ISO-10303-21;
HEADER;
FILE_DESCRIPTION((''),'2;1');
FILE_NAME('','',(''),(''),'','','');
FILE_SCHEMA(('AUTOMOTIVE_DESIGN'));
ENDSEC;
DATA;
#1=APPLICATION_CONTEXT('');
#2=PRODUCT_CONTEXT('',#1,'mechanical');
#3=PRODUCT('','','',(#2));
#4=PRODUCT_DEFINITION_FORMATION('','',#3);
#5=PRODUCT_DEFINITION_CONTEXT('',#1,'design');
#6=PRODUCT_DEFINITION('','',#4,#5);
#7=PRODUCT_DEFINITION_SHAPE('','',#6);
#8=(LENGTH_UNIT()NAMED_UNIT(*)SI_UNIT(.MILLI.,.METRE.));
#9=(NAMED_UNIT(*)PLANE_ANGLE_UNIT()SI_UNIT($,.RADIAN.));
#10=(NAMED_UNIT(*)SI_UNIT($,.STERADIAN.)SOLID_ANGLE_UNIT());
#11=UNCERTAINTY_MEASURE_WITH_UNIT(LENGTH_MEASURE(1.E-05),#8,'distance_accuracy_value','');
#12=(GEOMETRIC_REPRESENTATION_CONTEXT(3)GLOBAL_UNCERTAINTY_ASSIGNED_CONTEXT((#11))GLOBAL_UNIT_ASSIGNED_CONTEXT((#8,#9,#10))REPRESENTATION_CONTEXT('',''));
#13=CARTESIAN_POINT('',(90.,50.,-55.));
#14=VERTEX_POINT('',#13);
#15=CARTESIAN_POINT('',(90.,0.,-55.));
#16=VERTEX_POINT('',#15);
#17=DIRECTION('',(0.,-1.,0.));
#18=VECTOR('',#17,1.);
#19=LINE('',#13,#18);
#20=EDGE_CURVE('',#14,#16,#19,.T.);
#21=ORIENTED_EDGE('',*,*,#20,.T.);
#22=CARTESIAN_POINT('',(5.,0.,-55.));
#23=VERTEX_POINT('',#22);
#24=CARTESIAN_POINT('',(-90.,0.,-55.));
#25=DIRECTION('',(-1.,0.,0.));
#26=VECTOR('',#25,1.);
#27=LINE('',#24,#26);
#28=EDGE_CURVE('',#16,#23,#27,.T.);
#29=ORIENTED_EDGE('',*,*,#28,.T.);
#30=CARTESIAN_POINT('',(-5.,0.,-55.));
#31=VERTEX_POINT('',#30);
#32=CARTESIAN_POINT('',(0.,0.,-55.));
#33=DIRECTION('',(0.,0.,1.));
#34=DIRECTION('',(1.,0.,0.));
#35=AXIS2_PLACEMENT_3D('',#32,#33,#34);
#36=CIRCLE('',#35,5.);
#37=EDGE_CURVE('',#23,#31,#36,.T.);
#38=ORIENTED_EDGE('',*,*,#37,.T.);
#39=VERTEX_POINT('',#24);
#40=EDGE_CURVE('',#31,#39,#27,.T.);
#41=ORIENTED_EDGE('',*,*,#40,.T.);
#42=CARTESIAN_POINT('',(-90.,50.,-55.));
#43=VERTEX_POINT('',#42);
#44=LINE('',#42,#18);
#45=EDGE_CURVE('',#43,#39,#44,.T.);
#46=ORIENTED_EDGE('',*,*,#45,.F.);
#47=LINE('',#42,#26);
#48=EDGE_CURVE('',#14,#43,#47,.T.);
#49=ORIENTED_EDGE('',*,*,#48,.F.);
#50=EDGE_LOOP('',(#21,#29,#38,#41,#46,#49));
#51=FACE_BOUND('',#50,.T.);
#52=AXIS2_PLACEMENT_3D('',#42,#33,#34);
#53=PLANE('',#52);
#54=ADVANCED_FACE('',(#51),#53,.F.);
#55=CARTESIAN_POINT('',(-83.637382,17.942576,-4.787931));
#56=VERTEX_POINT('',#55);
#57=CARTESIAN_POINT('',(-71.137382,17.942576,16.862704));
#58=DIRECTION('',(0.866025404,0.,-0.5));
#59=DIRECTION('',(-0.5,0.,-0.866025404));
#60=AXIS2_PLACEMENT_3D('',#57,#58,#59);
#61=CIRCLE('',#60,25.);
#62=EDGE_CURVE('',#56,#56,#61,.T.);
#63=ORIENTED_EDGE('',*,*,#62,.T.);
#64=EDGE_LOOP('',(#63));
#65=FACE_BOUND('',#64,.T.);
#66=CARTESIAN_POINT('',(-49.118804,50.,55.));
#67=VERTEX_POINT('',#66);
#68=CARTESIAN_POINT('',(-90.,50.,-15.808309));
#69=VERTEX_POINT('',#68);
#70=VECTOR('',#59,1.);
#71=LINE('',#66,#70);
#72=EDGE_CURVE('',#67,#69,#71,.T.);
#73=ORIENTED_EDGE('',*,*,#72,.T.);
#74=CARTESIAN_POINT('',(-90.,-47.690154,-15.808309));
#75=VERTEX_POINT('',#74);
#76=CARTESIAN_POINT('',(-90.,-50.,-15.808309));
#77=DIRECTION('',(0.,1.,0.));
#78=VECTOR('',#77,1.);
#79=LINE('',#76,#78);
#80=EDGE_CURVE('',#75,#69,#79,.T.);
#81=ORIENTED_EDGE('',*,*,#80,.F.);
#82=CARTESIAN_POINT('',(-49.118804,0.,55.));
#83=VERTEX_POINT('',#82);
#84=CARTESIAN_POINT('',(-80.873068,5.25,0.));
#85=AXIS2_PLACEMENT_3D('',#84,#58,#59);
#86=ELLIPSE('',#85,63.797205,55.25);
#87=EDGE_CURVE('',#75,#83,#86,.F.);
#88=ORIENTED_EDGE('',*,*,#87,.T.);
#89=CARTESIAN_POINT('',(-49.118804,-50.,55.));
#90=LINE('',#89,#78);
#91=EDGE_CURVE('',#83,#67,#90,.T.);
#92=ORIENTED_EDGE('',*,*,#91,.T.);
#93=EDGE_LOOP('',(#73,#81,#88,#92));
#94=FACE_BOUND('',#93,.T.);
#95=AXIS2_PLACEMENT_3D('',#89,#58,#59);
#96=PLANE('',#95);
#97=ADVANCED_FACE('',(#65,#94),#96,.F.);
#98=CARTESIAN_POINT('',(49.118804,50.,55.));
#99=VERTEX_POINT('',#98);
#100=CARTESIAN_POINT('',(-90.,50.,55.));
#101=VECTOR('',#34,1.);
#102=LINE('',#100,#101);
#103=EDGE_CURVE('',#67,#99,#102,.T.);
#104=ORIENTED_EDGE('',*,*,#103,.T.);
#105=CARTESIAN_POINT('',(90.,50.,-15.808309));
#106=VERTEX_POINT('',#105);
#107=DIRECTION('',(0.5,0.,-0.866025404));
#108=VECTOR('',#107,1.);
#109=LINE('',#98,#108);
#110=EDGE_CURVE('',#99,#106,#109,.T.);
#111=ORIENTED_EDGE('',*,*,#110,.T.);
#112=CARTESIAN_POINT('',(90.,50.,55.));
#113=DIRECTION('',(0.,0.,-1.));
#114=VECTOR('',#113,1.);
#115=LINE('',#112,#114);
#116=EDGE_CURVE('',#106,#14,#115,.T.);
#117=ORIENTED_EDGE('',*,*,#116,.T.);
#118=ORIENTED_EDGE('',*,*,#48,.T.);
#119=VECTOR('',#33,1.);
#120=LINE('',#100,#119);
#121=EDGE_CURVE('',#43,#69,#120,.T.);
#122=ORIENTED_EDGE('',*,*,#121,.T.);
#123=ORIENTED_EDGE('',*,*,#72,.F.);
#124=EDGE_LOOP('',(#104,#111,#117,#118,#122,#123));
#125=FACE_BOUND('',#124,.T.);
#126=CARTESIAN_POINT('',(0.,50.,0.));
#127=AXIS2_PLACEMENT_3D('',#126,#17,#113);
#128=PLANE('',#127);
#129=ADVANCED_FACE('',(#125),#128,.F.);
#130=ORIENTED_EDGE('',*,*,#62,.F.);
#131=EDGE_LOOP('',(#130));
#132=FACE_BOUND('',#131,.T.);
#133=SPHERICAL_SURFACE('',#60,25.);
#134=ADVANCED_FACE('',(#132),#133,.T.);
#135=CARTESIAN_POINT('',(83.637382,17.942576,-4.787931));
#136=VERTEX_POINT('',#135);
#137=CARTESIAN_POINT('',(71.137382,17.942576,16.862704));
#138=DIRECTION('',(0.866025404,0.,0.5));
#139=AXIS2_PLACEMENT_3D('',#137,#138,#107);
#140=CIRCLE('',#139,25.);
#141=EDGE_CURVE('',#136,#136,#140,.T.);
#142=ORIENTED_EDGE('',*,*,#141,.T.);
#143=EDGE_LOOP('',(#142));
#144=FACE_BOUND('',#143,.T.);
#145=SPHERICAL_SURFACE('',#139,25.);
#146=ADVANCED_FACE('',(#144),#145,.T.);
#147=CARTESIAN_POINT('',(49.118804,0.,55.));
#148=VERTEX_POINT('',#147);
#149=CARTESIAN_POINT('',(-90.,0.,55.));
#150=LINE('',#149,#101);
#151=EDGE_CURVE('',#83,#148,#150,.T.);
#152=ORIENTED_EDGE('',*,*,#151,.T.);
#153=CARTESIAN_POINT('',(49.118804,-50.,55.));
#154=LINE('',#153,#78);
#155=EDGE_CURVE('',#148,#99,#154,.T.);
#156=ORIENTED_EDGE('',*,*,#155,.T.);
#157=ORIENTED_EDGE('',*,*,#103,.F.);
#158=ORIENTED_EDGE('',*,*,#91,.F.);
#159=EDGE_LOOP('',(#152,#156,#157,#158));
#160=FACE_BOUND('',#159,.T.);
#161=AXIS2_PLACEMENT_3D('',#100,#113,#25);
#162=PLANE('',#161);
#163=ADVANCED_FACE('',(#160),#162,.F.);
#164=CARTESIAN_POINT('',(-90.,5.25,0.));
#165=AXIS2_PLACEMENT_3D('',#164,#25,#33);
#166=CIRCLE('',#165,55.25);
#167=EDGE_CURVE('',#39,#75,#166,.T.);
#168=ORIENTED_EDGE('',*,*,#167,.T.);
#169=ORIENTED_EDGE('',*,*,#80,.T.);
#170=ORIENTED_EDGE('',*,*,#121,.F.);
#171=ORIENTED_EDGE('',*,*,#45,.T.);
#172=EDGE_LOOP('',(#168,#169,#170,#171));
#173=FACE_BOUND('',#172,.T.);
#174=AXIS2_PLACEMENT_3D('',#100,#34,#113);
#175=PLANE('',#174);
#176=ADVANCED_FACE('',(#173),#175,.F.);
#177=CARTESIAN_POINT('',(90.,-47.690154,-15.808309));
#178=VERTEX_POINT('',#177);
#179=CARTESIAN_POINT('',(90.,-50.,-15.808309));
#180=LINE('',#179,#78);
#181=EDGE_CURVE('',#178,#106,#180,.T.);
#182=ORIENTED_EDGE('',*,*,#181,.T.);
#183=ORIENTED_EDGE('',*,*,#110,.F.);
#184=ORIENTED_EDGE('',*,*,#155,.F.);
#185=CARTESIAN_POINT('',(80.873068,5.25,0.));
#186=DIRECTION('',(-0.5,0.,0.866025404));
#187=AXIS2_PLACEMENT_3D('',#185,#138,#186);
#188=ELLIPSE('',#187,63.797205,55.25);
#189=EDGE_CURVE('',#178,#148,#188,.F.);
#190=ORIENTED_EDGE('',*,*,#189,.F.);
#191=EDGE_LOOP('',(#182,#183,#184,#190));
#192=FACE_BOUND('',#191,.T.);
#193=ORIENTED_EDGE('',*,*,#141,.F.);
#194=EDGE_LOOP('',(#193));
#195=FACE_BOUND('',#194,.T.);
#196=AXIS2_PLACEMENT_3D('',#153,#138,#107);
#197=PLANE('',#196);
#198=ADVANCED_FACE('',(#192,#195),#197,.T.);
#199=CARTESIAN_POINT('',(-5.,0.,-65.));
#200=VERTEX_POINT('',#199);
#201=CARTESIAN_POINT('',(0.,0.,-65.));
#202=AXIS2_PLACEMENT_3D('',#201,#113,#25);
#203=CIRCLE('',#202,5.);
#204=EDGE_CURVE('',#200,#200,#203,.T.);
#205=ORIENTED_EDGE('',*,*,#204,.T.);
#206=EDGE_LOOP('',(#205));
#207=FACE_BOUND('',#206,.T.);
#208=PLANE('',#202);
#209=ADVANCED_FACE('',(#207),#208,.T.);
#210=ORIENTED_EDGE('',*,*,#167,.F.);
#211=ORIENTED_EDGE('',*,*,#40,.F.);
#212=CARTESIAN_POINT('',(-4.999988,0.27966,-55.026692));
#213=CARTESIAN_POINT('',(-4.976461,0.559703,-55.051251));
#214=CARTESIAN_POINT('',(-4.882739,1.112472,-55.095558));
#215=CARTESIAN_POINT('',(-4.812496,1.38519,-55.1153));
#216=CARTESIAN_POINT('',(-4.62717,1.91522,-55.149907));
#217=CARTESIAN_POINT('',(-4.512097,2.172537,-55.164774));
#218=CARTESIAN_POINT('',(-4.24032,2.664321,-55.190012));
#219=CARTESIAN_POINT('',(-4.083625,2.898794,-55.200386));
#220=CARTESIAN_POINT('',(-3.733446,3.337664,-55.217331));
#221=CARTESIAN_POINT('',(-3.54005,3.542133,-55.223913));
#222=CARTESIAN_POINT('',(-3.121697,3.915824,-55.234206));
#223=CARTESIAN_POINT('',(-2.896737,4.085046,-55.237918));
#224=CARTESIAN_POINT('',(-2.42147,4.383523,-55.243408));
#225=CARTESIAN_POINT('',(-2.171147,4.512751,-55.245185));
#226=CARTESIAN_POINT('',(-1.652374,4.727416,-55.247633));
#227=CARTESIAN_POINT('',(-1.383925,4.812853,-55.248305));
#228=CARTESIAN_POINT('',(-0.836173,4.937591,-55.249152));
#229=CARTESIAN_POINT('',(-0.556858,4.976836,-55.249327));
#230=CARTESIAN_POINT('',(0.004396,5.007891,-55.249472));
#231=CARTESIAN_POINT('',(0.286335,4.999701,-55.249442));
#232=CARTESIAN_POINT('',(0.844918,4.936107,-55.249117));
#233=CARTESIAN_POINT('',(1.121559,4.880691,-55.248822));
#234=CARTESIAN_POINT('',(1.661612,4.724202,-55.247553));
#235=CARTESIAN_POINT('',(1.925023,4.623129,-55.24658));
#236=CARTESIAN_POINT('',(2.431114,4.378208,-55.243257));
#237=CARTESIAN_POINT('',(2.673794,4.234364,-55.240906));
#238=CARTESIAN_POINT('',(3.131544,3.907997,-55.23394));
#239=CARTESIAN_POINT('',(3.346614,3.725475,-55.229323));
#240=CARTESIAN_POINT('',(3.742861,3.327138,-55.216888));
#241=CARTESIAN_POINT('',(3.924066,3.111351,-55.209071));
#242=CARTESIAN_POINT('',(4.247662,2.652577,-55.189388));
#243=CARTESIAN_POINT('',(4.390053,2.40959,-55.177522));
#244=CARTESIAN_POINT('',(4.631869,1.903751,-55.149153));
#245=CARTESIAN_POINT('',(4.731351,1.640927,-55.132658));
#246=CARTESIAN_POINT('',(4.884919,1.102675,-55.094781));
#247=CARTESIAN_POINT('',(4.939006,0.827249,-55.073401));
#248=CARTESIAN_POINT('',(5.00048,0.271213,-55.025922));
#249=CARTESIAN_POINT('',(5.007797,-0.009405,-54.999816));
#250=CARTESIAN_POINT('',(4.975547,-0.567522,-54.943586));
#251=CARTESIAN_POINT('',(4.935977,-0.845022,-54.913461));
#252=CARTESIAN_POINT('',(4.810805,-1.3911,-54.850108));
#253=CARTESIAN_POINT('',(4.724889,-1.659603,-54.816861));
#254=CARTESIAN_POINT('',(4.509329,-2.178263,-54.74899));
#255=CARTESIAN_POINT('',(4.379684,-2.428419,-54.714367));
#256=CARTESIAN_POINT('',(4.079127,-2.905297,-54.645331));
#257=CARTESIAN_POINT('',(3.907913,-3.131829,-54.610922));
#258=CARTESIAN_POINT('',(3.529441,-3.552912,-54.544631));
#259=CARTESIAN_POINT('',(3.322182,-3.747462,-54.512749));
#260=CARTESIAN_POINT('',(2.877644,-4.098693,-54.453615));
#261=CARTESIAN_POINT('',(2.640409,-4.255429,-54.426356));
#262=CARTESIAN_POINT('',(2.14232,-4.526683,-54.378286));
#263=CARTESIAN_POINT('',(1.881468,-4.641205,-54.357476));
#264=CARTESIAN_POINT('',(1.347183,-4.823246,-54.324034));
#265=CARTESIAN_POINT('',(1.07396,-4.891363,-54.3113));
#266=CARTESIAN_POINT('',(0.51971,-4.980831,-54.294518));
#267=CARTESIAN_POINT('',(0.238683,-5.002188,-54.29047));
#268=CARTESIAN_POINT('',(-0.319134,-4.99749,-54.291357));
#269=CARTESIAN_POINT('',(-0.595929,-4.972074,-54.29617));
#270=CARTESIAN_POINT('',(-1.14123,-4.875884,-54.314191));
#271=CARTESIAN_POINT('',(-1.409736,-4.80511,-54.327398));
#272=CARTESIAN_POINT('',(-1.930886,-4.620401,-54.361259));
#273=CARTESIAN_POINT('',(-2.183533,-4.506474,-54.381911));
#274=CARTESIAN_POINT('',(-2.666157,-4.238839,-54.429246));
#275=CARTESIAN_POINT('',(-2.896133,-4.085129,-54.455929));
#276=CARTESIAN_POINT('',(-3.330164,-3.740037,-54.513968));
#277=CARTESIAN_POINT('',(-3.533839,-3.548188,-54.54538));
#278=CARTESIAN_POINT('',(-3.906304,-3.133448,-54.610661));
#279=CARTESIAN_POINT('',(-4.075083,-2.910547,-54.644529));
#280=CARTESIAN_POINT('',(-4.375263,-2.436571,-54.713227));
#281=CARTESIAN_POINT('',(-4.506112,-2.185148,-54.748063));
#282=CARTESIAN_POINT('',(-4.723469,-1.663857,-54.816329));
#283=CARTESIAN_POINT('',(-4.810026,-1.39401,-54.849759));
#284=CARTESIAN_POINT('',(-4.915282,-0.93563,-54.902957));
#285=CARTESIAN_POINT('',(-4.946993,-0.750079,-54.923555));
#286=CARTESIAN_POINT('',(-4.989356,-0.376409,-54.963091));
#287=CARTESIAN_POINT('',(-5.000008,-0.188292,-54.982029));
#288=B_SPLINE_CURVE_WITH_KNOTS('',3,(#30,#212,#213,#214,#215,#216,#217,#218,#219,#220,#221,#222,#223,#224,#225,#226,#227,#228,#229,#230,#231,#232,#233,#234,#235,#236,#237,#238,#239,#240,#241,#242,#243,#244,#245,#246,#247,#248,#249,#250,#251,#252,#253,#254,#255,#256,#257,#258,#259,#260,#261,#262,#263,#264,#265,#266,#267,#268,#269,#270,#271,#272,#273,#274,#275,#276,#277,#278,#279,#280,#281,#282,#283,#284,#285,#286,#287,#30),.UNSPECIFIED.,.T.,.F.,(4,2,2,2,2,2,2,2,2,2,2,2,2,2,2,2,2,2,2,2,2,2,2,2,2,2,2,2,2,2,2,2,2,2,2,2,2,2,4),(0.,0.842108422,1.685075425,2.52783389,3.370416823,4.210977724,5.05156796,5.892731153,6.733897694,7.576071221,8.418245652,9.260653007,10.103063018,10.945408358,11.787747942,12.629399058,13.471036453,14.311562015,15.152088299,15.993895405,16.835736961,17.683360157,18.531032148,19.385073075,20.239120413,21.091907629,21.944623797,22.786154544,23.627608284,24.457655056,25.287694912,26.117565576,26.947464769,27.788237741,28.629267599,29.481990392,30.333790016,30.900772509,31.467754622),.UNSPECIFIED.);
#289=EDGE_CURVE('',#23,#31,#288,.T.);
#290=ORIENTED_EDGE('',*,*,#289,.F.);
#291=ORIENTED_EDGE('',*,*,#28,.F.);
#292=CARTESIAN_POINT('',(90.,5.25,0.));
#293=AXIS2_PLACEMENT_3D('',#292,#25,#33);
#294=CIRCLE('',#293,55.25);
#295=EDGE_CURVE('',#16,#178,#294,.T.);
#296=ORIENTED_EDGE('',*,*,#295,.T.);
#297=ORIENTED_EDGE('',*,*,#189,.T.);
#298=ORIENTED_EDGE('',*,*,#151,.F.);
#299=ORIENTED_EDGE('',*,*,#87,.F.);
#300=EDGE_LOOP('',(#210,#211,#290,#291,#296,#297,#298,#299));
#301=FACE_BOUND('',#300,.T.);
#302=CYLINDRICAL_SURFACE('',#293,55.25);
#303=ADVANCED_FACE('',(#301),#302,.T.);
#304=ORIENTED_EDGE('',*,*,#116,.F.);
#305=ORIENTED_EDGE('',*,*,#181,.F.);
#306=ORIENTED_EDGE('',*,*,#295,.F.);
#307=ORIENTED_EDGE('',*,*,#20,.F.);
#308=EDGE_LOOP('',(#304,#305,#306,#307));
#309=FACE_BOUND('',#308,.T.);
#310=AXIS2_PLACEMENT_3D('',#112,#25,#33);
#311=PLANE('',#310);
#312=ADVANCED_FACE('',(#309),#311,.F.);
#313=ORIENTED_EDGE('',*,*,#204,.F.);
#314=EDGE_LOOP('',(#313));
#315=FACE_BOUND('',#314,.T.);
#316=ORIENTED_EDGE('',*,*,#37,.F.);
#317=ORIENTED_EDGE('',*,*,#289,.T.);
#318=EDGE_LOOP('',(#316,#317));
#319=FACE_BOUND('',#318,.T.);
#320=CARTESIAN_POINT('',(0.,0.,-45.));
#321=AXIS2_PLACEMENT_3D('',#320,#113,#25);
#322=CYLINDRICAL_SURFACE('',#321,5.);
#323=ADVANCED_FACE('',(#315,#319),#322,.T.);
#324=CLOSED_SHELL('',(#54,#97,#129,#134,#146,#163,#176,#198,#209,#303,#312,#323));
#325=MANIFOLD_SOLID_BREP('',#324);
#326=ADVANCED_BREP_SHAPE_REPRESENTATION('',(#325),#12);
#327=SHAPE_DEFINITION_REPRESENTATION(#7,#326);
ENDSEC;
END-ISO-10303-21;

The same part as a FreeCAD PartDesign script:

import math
import FreeCAD as App
import Part
import Sketcher
from FreeCAD import Vector
Q = App.Units.Quantity


def add_polygon(sketch, points):
    """Adds a closed chain of lines whose ends are joined by coincident constraints."""
    first, n = sketch.GeometryCount, len(points)
    for a, b in zip(points, points[1:] + points[:1]):
        sketch.addGeometry(Part.LineSegment(App.Vector(*a, 0), App.Vector(*b, 0)), False)
    for i in range(n):
        sketch.addConstraint(Sketcher.Constraint("Coincident", first + i, 2, first + (i + 1) % n, 1))

doc = App.newDocument("Part")
body = doc.addObject("PartDesign::Body", "Body")

# Sketch on XZ plane
sketch1 = body.newObject("Sketcher::SketchObject", "Sketch")
sketch1.AttachmentSupport = (doc.getObject("XZ_Plane"), [""])
sketch1.MapMode = "FlatFace"
add_polygon(sketch1, [(-90, -55), (-90, 55), (90, 55), (90, -55)])  # lines 0-3
sketch1.addConstraint(Sketcher.Constraint("Vertical", 0))
sketch1.addConstraint(Sketcher.Constraint("Horizontal", 1))
sketch1.addConstraint(Sketcher.Constraint("Vertical", 2))
sketch1.addConstraint(Sketcher.Constraint("Horizontal", 3))
sketch1.addConstraint(Sketcher.Constraint("Symmetric", 0, 2, 2, 2, -1, 1))
sketch1.addConstraint(Sketcher.Constraint("DistanceX", 1, 1, 1, 2, 180.0))
sketch1.addConstraint(Sketcher.Constraint("DistanceY", 0, 1, 0, 2, 110.0))
pad1 = body.newObject("PartDesign::Pad", "Pad")
pad1.Profile = sketch1
pad1.Length = 50
pad1.Reversed = True

# Sketch on YZ plane
sketch2 = body.newObject("Sketcher::SketchObject", "Sketch001")
sketch2.AttachmentSupport = (doc.getObject("YZ_Plane"), [""])
sketch2.MapMode = "FlatFace"
sketch2.AttachmentOffset = App.Placement(Vector(0, 0, -90), App.Rotation())
sketch2.addGeometry(Part.LineSegment(Vector(0, 55, 0), Vector(0, -55, 0)), False)
sketch2.addGeometry(Part.ArcOfCircle(Part.Circle(Vector(5, 0, 0), Vector(0, 0, 1), 55), math.radians(95), math.radians(265)), False)
sketch2.addConstraint(Sketcher.Constraint("Coincident", 0, 1, 1, 1))
sketch2.addConstraint(Sketcher.Constraint("Coincident", 1, 2, 0, 2))
sketch2.addConstraint(Sketcher.Constraint("Vertical", 0))
sketch2.addConstraint(Sketcher.Constraint("Symmetric", 0, 1, 1, 2, -1, 1))
sketch2.addConstraint(Sketcher.Constraint("DistanceY", 0, 2, 0, 1, 110.0))
sketch2.addConstraint(Sketcher.Constraint("Radius", 1, 55.25))
pad2 = body.newObject("PartDesign::Pad", "Pad001")
pad2.Profile = sketch2
pad2.Length = 180

# Sketch on XZ plane
sketch3 = body.newObject("Sketcher::SketchObject", "Sketch002")
sketch3.AttachmentSupport = (doc.getObject("XZ_Plane"), [""])
sketch3.MapMode = "FlatFace"
sketch3.AttachmentOffset = App.Placement(Vector(0, 0, -50), App.Rotation())
add_polygon(sketch3, [(-49, 55), (-90, -16), (-90, 55)])  # lines 0-2
sketch3.addConstraint(Sketcher.Constraint("Vertical", 1))
sketch3.addConstraint(Sketcher.Constraint("Horizontal", 2))
sketch3.addConstraint(Sketcher.Constraint("Angle", 0, Q("-120 deg")))
sketch3.addConstraint(Sketcher.Constraint("DistanceX", 0, 2, -1, 1, 90.0))
sketch3.addConstraint(Sketcher.Constraint("DistanceY", -1, 1, 1, 2, 55.0))
sketch3.addConstraint(Sketcher.Constraint("DistanceY", 1, 1, 1, 2, 70.808309))
pocket1 = body.newObject("PartDesign::Pocket", "Pocket")
pocket1.Profile = sketch3
pocket1.Type = "ThroughAll"
pocket1.Reversed = True
doc.recompute()

mirrored = body.newObject("PartDesign::Mirrored", "Mirrored")
mirrored.Originals = [pocket1]
mirrored.MirrorPlane = (doc.getObject("YZ_Plane"), [""])
body.Tip = mirrored

# Sketch on XY plane
sketch4 = body.newObject("Sketcher::SketchObject", "Sketch003")
sketch4.AttachmentSupport = (doc.getObject("XY_Plane"), [""])
sketch4.MapMode = "FlatFace"
sketch4.AttachmentOffset = App.Placement(Vector(0, 0, -55), App.Rotation())
sketch4.addGeometry(Part.Circle(Vector(0, 0, 0), Vector(0, 0, 1), 5), False)
sketch4.addConstraint(Sketcher.Constraint("Coincident", 0, 3, -1, 1))
sketch4.addConstraint(Sketcher.Constraint("Diameter", 0, 10.0))
pad3 = body.newObject("PartDesign::Pad", "Pad002")
pad3.Profile = sketch4
pad3.Type = "TwoLengths"
pad3.Length = 10
pad3.Length2 = 10
pad3.Reversed = True

# Sketch on an angled plane
sketch5 = body.newObject("Sketcher::SketchObject", "Sketch004")
sketch5.Placement = App.Placement(Vector(-60.654801, 0, 35.019066), App.Rotation(Vector(0.5, 0, 0.866025404), Vector(0, 1, 0), Vector(-0.866025404, 0, 0.5), "ZXY"))
sketch5.addGeometry(Part.ArcOfCircle(Part.Circle(Vector(-21, 18, 0), Vector(0, 0, 1), 25), math.radians(-90), math.radians(90)), False)
sketch5.addGeometry(Part.LineSegment(Vector(-21, 43, 0), Vector(-21, -7, 0)), False)
sketch5.addGeometry(Part.LineSegment(Vector(-21, 43, 0), Vector(-21, -7, 0)), True)  # axis
sketch5.addConstraint(Sketcher.Constraint("Coincident", 0, 1, 1, 2))
sketch5.addConstraint(Sketcher.Constraint("Coincident", 1, 1, 0, 2))
sketch5.addConstraint(Sketcher.Constraint("Vertical", 1))
sketch5.addConstraint(Sketcher.Constraint("Vertical", 2))
sketch5.addConstraint(Sketcher.Constraint("Coincident", 2, 1, 1, 1))
sketch5.addConstraint(Sketcher.Constraint("Equal", 1, 2))
sketch5.addConstraint(Sketcher.Constraint("Radius", 0, 25.0))
sketch5.addConstraint(Sketcher.Constraint("DistanceX", 0, 3, -1, 1, 20.965161))
sketch5.addConstraint(Sketcher.Constraint("DistanceX", 0, 1, -1, 1, 20.965161))
sketch5.addConstraint(Sketcher.Constraint("DistanceY", -1, 1, 0, 3, 17.942577))
revolution = body.newObject("PartDesign::Revolution", "Revolution")
revolution.Profile = sketch5
revolution.ReferenceAxis = (sketch5, ["Axis0"])
revolution.Angle = 360
doc.recompute()

mirrored2 = body.newObject("PartDesign::Mirrored", "Mirrored001")
mirrored2.Originals = [revolution]
mirrored2.MirrorPlane = (doc.getObject("YZ_Plane"), [""])
body.Tip = mirrored2

doc.recompute()
